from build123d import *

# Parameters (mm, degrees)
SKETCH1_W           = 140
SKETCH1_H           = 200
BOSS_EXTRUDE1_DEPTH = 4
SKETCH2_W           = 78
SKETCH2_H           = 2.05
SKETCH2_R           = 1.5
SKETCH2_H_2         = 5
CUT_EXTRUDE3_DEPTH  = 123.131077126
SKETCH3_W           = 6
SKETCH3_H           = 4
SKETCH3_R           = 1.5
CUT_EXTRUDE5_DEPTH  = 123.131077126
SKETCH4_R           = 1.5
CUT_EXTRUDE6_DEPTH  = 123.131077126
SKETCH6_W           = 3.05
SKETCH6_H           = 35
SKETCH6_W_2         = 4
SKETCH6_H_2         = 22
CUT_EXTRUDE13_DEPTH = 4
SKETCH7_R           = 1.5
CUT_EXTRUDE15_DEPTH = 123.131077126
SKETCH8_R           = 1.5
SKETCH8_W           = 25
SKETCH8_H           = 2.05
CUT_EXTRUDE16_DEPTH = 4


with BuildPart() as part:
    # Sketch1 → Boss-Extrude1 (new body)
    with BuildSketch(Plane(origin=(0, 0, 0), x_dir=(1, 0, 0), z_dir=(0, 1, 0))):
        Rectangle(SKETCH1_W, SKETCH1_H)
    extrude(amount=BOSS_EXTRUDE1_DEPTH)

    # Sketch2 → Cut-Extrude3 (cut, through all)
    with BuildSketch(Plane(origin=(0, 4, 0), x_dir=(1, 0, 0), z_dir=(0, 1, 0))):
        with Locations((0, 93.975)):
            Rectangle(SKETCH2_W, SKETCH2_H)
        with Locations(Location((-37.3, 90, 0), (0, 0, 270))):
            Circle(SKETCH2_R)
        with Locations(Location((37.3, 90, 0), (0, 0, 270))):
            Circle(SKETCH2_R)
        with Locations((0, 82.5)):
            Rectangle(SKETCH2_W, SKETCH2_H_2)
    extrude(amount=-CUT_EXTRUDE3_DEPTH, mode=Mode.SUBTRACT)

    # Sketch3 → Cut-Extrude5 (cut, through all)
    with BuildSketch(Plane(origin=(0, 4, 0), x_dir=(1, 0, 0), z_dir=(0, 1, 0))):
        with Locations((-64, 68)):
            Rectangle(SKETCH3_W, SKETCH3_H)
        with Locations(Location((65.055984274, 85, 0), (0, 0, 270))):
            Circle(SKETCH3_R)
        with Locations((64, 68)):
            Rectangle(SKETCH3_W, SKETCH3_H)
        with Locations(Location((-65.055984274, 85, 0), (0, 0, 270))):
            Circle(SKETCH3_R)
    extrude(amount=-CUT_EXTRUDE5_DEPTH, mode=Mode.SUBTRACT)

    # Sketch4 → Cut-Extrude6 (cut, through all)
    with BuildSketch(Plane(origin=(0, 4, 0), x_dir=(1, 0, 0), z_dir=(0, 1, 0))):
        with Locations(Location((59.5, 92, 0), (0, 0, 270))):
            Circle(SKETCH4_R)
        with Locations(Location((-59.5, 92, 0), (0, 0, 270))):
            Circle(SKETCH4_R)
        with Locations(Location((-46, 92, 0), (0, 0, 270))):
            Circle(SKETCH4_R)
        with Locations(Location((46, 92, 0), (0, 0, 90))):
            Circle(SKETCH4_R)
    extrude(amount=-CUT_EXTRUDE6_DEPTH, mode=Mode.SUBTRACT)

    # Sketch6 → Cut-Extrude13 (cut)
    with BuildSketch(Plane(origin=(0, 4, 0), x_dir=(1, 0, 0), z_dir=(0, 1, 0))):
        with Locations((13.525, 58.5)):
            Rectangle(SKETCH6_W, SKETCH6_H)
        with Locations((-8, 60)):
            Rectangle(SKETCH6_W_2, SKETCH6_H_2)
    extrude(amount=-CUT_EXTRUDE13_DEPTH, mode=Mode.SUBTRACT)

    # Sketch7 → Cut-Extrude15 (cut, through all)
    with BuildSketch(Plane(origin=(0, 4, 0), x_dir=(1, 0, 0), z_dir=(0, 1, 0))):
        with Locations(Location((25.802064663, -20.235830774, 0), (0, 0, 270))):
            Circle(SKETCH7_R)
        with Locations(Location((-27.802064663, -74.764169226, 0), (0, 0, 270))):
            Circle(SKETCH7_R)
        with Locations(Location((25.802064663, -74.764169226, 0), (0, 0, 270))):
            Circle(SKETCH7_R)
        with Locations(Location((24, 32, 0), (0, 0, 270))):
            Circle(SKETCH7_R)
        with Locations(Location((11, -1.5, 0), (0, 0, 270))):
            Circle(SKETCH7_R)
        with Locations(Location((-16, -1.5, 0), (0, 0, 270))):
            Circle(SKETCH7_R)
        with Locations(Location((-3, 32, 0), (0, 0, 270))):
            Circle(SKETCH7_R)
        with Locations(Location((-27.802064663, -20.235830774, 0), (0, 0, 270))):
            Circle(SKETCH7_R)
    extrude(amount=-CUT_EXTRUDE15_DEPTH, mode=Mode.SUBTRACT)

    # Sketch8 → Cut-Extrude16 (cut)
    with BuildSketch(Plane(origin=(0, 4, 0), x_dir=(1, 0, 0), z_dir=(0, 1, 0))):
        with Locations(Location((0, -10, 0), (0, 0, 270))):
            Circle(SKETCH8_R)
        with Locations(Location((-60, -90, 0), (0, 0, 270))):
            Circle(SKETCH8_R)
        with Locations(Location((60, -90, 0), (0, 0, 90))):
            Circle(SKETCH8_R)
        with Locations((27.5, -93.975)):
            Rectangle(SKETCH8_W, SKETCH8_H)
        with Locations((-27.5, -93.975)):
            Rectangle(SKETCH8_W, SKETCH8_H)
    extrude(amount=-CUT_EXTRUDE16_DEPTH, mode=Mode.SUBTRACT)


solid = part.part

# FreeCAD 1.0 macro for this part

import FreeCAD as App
import Part
import Sketcher

V = App.Vector

doc = App.newDocument("Part")
params = doc.addObject("Spreadsheet::Sheet", "Params")
for row, (alias, value) in enumerate([
    ("sketch1_width", "140 mm"),
    ("sketch1_height", "200 mm"),
    ("pad1_length", "4 mm"),
    ("sketch2_diameter", "3 mm"),
    ("sketch2_width", "78 mm"),
    ("sketch2_height", "5 mm"),
    ("sketch2_height2", "2.05 mm"),
    ("sketch3_diameter", "3 mm"),
    ("sketch3_width", "6 mm"),
    ("sketch3_height", "4 mm"),
    ("sketch4_diameter", "3 mm"),
    ("sketch5_width", "4 mm"),
    ("sketch5_height", "35 mm"),
    ("sketch5_height2", "22 mm"),
    ("sketch5_width2", "3.05 mm"),
    ("pocket4_length", "4 mm"),
    ("sketch6_diameter", "3 mm"),
    ("sketch7_diameter", "3 mm"),
    ("sketch7_width", "25 mm"),
    ("sketch7_height", "2.05 mm"),
    ("pocket6_length", "4 mm"),
], start=1):
    params.set(f"A{row}", alias)
    params.set(f"B{row}", "=" + value)
    params.setAlias(f"B{row}", alias)

body = doc.addObject("PartDesign::Body", "Body")

# Sketch on XZ plane
sketch1 = body.newObject("Sketcher::SketchObject", "Sketch")
sketch1.AttachmentSupport = (doc.getObject("XZ_Plane"), [""])
sketch1.MapMode = "FlatFace"
sketch1.addGeometry(Part.LineSegment(V(-70, -100, 0), V(-70, 100, 0)), False)
sketch1.addGeometry(Part.LineSegment(V(-70, 100, 0), V(70, 100, 0)), False)
sketch1.addGeometry(Part.LineSegment(V(70, 100, 0), V(70, -100, 0)), False)
sketch1.addGeometry(Part.LineSegment(V(70, -100, 0), V(-70, -100, 0)), False)
sketch1.addConstraint(Sketcher.Constraint("Coincident", 0, 2, 1, 1))
sketch1.addConstraint(Sketcher.Constraint("Coincident", 1, 2, 2, 1))
sketch1.addConstraint(Sketcher.Constraint("Coincident", 2, 2, 3, 1))
sketch1.addConstraint(Sketcher.Constraint("Coincident", 3, 2, 0, 1))
sketch1.addConstraint(Sketcher.Constraint("Vertical", 0))
sketch1.addConstraint(Sketcher.Constraint("Horizontal", 1))
sketch1.addConstraint(Sketcher.Constraint("Vertical", 2))
sketch1.addConstraint(Sketcher.Constraint("Horizontal", 3))
sketch1.addConstraint(Sketcher.Constraint("Symmetric", 0, 2, 2, 2, -1, 1))
sketch1.addConstraint(Sketcher.Constraint("DistanceX", 1, 1, 1, 2, 140.0))
sketch1.addConstraint(Sketcher.Constraint("DistanceY", 0, 1, 0, 2, 200.0))
sketch1.setExpression("Constraints[9]", "Params.sketch1_width")
sketch1.setExpression("Constraints[10]", "Params.sketch1_height")
pad1 = body.newObject("PartDesign::Pad", "Pad")
pad1.Profile = sketch1
pad1.setExpression("Length", "Params.pad1_length")
pad1.Reversed = True

# Sketch on XZ plane
sketch2 = body.newObject("Sketcher::SketchObject", "Sketch001")
sketch2.AttachmentSupport = (doc.getObject("XZ_Plane"), [""])
sketch2.MapMode = "FlatFace"
sketch2.AttachmentOffset = App.Placement(V(0, 0, -4), App.Rotation())
sketch2.addGeometry(Part.LineSegment(V(-39, -95, 0), V(-39, -92.95, 0)), False)
sketch2.addGeometry(Part.LineSegment(V(-39, -92.95, 0), V(39, -92.95, 0)), False)
sketch2.addGeometry(Part.LineSegment(V(39, -92.95, 0), V(39, -95, 0)), False)
sketch2.addGeometry(Part.LineSegment(V(39, -95, 0), V(-39, -95, 0)), False)
sketch2.addGeometry(Part.Circle(V(-37.3, -90, 0), V(0, 0, 1), 1.5), False)
sketch2.addGeometry(Part.Circle(V(37.3, -90, 0), V(0, 0, 1), 1.5), False)
sketch2.addGeometry(Part.LineSegment(V(-39, -85, 0), V(-39, -80, 0)), False)
sketch2.addGeometry(Part.LineSegment(V(-39, -80, 0), V(39, -80, 0)), False)
sketch2.addGeometry(Part.LineSegment(V(39, -80, 0), V(39, -85, 0)), False)
sketch2.addGeometry(Part.LineSegment(V(39, -85, 0), V(-39, -85, 0)), False)
sketch2.addConstraint(Sketcher.Constraint("Coincident", 0, 2, 1, 1))
sketch2.addConstraint(Sketcher.Constraint("Coincident", 1, 2, 2, 1))
sketch2.addConstraint(Sketcher.Constraint("Coincident", 2, 2, 3, 1))
sketch2.addConstraint(Sketcher.Constraint("Coincident", 3, 2, 0, 1))
sketch2.addConstraint(Sketcher.Constraint("Coincident", 6, 2, 7, 1))
sketch2.addConstraint(Sketcher.Constraint("Coincident", 7, 2, 8, 1))
sketch2.addConstraint(Sketcher.Constraint("Coincident", 8, 2, 9, 1))
sketch2.addConstraint(Sketcher.Constraint("Coincident", 9, 2, 6, 1))
sketch2.addConstraint(Sketcher.Constraint("Vertical", 0))
sketch2.addConstraint(Sketcher.Constraint("Horizontal", 1))
sketch2.addConstraint(Sketcher.Constraint("Vertical", 2))
sketch2.addConstraint(Sketcher.Constraint("Horizontal", 3))
sketch2.addConstraint(Sketcher.Constraint("Vertical", 6))
sketch2.addConstraint(Sketcher.Constraint("Horizontal", 7))
sketch2.addConstraint(Sketcher.Constraint("Vertical", 8))
sketch2.addConstraint(Sketcher.Constraint("Horizontal", 9))
sketch2.addConstraint(Sketcher.Constraint("Equal", 4, 5))
sketch2.addConstraint(Sketcher.Constraint("Symmetric", 4, 3, 5, 3, -2))
sketch2.addConstraint(Sketcher.Constraint("Vertical", 3, 2, 6, 2))
sketch2.addConstraint(Sketcher.Constraint("Vertical", 2, 2, 7, 2))
sketch2.addConstraint(Sketcher.Constraint("Diameter", 4, 3.0))
sketch2.addConstraint(Sketcher.Constraint("DistanceX", 1, 1, 1, 2, 78.0))
sketch2.addConstraint(Sketcher.Constraint("DistanceY", 6, 1, 6, 2, 5.0))
sketch2.addConstraint(Sketcher.Constraint("DistanceY", 4, 3, -1, 1, 90.0))
sketch2.addConstraint(Sketcher.Constraint("DistanceX", 0, 2, -1, 1, 39.0))
sketch2.addConstraint(Sketcher.Constraint("DistanceY", 2, 2, -1, 1, 95.0))
sketch2.addConstraint(Sketcher.Constraint("DistanceY", 6, 2, -1, 1, 80.0))
sketch2.addConstraint(Sketcher.Constraint("DistanceY", 0, 1, 0, 2, 2.05))
sketch2.addConstraint(Sketcher.Constraint("DistanceX", 4, 3, -1, 1, 37.3))
sketch2.setExpression("Constraints[20]", "Params.sketch2_diameter")
sketch2.setExpression("Constraints[21]", "Params.sketch2_width")
sketch2.setExpression("Constraints[22]", "Params.sketch2_height")
sketch2.setExpression("Constraints[27]", "Params.sketch2_height2")
pocket1 = body.newObject("PartDesign::Pocket", "Pocket")
pocket1.Profile = sketch2
pocket1.Type = "ThroughAll"
pocket1.Reversed = True

# Sketch on XZ plane
sketch3 = body.newObject("Sketcher::SketchObject", "Sketch002")
sketch3.AttachmentSupport = (doc.getObject("XZ_Plane"), [""])
sketch3.MapMode = "FlatFace"
sketch3.AttachmentOffset = App.Placement(V(0, 0, -4), App.Rotation())
sketch3.addGeometry(Part.LineSegment(V(-67, -70, 0), V(-67, -66, 0)), False)
sketch3.addGeometry(Part.LineSegment(V(-67, -66, 0), V(-61, -66, 0)), False)
sketch3.addGeometry(Part.LineSegment(V(-61, -66, 0), V(-61, -70, 0)), False)
sketch3.addGeometry(Part.LineSegment(V(-61, -70, 0), V(-67, -70, 0)), False)
sketch3.addGeometry(Part.Circle(V(65.055984, -85, 0), V(0, 0, 1), 1.5), False)
sketch3.addGeometry(Part.LineSegment(V(61, -70, 0), V(61, -66, 0)), False)
sketch3.addGeometry(Part.LineSegment(V(61, -66, 0), V(67, -66, 0)), False)
sketch3.addGeometry(Part.LineSegment(V(67, -66, 0), V(67, -70, 0)), False)
sketch3.addGeometry(Part.LineSegment(V(67, -70, 0), V(61, -70, 0)), False)
sketch3.addGeometry(Part.Circle(V(-65.055984, -85, 0), V(0, 0, 1), 1.5), False)
sketch3.addConstraint(Sketcher.Constraint("Coincident", 0, 2, 1, 1))
sketch3.addConstraint(Sketcher.Constraint("Coincident", 1, 2, 2, 1))
sketch3.addConstraint(Sketcher.Constraint("Coincident", 2, 2, 3, 1))
sketch3.addConstraint(Sketcher.Constraint("Coincident", 3, 2, 0, 1))
sketch3.addConstraint(Sketcher.Constraint("Coincident", 5, 2, 6, 1))
sketch3.addConstraint(Sketcher.Constraint("Coincident", 6, 2, 7, 1))
sketch3.addConstraint(Sketcher.Constraint("Coincident", 7, 2, 8, 1))
sketch3.addConstraint(Sketcher.Constraint("Coincident", 8, 2, 5, 1))
sketch3.addConstraint(Sketcher.Constraint("Vertical", 0))
sketch3.addConstraint(Sketcher.Constraint("Horizontal", 1))
sketch3.addConstraint(Sketcher.Constraint("Vertical", 2))
sketch3.addConstraint(Sketcher.Constraint("Horizontal", 3))
sketch3.addConstraint(Sketcher.Constraint("Vertical", 5))
sketch3.addConstraint(Sketcher.Constraint("Horizontal", 6))
sketch3.addConstraint(Sketcher.Constraint("Vertical", 7))
sketch3.addConstraint(Sketcher.Constraint("Horizontal", 8))
sketch3.addConstraint(Sketcher.Constraint("Equal", 4, 9))
sketch3.addConstraint(Sketcher.Constraint("Symmetric", 4, 3, 9, 3, -2))
sketch3.addConstraint(Sketcher.Constraint("Symmetric", 1, 2, 5, 2, -2))
sketch3.addConstraint(Sketcher.Constraint("Symmetric", 3, 2, 7, 2, -2))
sketch3.addConstraint(Sketcher.Constraint("Diameter", 4, 3.0))
sketch3.addConstraint(Sketcher.Constraint("DistanceX", 1, 1, 1, 2, 6.0))
sketch3.addConstraint(Sketcher.Constraint("DistanceY", 0, 1, 0, 2, 4.0))
sketch3.addConstraint(Sketcher.Constraint("DistanceY", 4, 3, -1, 1, 85.0))
sketch3.addConstraint(Sketcher.Constraint("DistanceX", 0, 2, -1, 1, 67.0))
sketch3.addConstraint(Sketcher.Constraint("DistanceY", 0, 2, -1, 1, 66.0))
sketch3.addConstraint(Sketcher.Constraint("DistanceX", 9, 3, 4, 3, 130.111969))
sketch3.setExpression("Constraints[20]", "Params.sketch3_diameter")
sketch3.setExpression("Constraints[21]", "Params.sketch3_width")
sketch3.setExpression("Constraints[22]", "Params.sketch3_height")
pocket2 = body.newObject("PartDesign::Pocket", "Pocket001")
pocket2.Profile = sketch3
pocket2.Type = "ThroughAll"
pocket2.Reversed = True

# Sketch on XZ plane
sketch4 = body.newObject("Sketcher::SketchObject", "Sketch003")
sketch4.AttachmentSupport = (doc.getObject("XZ_Plane"), [""])
sketch4.MapMode = "FlatFace"
sketch4.AttachmentOffset = App.Placement(V(0, 0, -4), App.Rotation())
sketch4.addGeometry(Part.Circle(V(59.5, -92, 0), V(0, 0, 1), 1.5), False)
sketch4.addGeometry(Part.Circle(V(-59.5, -92, 0), V(0, 0, 1), 1.5), False)
sketch4.addGeometry(Part.Circle(V(-46, -92, 0), V(0, 0, 1), 1.5), False)
sketch4.addGeometry(Part.Circle(V(46, -92, 0), V(0, 0, 1), 1.5), False)
sketch4.addConstraint(Sketcher.Constraint("Equal", 0, 1))
sketch4.addConstraint(Sketcher.Constraint("Equal", 1, 2))
sketch4.addConstraint(Sketcher.Constraint("Equal", 2, 3))
sketch4.addConstraint(Sketcher.Constraint("Symmetric", 0, 3, 1, 3, -2))
sketch4.addConstraint(Sketcher.Constraint("Symmetric", 2, 3, 3, 3, -2))
sketch4.addConstraint(Sketcher.Constraint("Horizontal", 1, 3, 2, 3))
sketch4.addConstraint(Sketcher.Constraint("Diameter", 0, 3.0))
sketch4.addConstraint(Sketcher.Constraint("DistanceY", 0, 3, -1, 1, 92.0))
sketch4.addConstraint(Sketcher.Constraint("DistanceX", 2, 3, -1, 1, 46.0))
sketch4.addConstraint(Sketcher.Constraint("DistanceX", 1, 3, 0, 3, 119.0))
sketch4.setExpression("Constraints[6]", "Params.sketch4_diameter")
pocket3 = body.newObject("PartDesign::Pocket", "Pocket002")
pocket3.Profile = sketch4
pocket3.Type = "ThroughAll"
pocket3.Reversed = True

# Sketch on XZ plane
sketch5 = body.newObject("Sketcher::SketchObject", "Sketch004")
sketch5.AttachmentSupport = (doc.getObject("XZ_Plane"), [""])
sketch5.MapMode = "FlatFace"
sketch5.AttachmentOffset = App.Placement(V(0, 0, -4), App.Rotation())
sketch5.addGeometry(Part.LineSegment(V(12, -76, 0), V(12, -41, 0)), False)
sketch5.addGeometry(Part.LineSegment(V(12, -41, 0), V(15.05, -41, 0)), False)
sketch5.addGeometry(Part.LineSegment(V(15.05, -41, 0), V(15.05, -76, 0)), False)
sketch5.addGeometry(Part.LineSegment(V(15.05, -76, 0), V(12, -76, 0)), False)
sketch5.addGeometry(Part.LineSegment(V(-10, -71, 0), V(-10, -49, 0)), False)
sketch5.addGeometry(Part.LineSegment(V(-10, -49, 0), V(-6, -49, 0)), False)
sketch5.addGeometry(Part.LineSegment(V(-6, -49, 0), V(-6, -71, 0)), False)
sketch5.addGeometry(Part.LineSegment(V(-6, -71, 0), V(-10, -71, 0)), False)
sketch5.addConstraint(Sketcher.Constraint("Coincident", 0, 2, 1, 1))
sketch5.addConstraint(Sketcher.Constraint("Coincident", 1, 2, 2, 1))
sketch5.addConstraint(Sketcher.Constraint("Coincident", 2, 2, 3, 1))
sketch5.addConstraint(Sketcher.Constraint("Coincident", 3, 2, 0, 1))
sketch5.addConstraint(Sketcher.Constraint("Coincident", 4, 2, 5, 1))
sketch5.addConstraint(Sketcher.Constraint("Coincident", 5, 2, 6, 1))
sketch5.addConstraint(Sketcher.Constraint("Coincident", 6, 2, 7, 1))
sketch5.addConstraint(Sketcher.Constraint("Coincident", 7, 2, 4, 1))
sketch5.addConstraint(Sketcher.Constraint("Vertical", 0))
sketch5.addConstraint(Sketcher.Constraint("Horizontal", 1))
sketch5.addConstraint(Sketcher.Constraint("Vertical", 2))
sketch5.addConstraint(Sketcher.Constraint("Horizontal", 3))
sketch5.addConstraint(Sketcher.Constraint("Vertical", 4))
sketch5.addConstraint(Sketcher.Constraint("Horizontal", 5))
sketch5.addConstraint(Sketcher.Constraint("Vertical", 6))
sketch5.addConstraint(Sketcher.Constraint("Horizontal", 7))
sketch5.addConstraint(Sketcher.Constraint("DistanceX", 5, 1, 5, 2, 4.0))
sketch5.addConstraint(Sketcher.Constraint("DistanceY", 0, 1, 0, 2, 35.0))
sketch5.addConstraint(Sketcher.Constraint("DistanceY", 4, 1, 4, 2, 22.0))
sketch5.addConstraint(Sketcher.Constraint("DistanceX", -1, 1, 0, 2, 12.0))
sketch5.addConstraint(Sketcher.Constraint("DistanceY", 0, 2, -1, 1, 41.0))
sketch5.addConstraint(Sketcher.Constraint("DistanceX", 4, 2, -1, 1, 10.0))
sketch5.addConstraint(Sketcher.Constraint("DistanceY", 4, 2, -1, 1, 49.0))
sketch5.addConstraint(Sketcher.Constraint("DistanceX", 1, 1, 1, 2, 3.05))
sketch5.setExpression("Constraints[16]", "Params.sketch5_width")
sketch5.setExpression("Constraints[17]", "Params.sketch5_height")
sketch5.setExpression("Constraints[18]", "Params.sketch5_height2")
sketch5.setExpression("Constraints[23]", "Params.sketch5_width2")
pocket4 = body.newObject("PartDesign::Pocket", "Pocket003")
pocket4.Profile = sketch5
pocket4.setExpression("Length", "Params.pocket4_length")
pocket4.Reversed = True

# Sketch on XZ plane
sketch6 = body.newObject("Sketcher::SketchObject", "Sketch005")
sketch6.AttachmentSupport = (doc.getObject("XZ_Plane"), [""])
sketch6.MapMode = "FlatFace"
sketch6.AttachmentOffset = App.Placement(V(0, 0, -4), App.Rotation())
sketch6.addGeometry(Part.Circle(V(25.802065, 20.235831, 0), V(0, 0, 1), 1.5), False)
sketch6.addGeometry(Part.Circle(V(-27.802065, 74.764169, 0), V(0, 0, 1), 1.5), False)
sketch6.addGeometry(Part.Circle(V(25.802065, 74.764169, 0), V(0, 0, 1), 1.5), False)
sketch6.addGeometry(Part.Circle(V(24, -32, 0), V(0, 0, 1), 1.5), False)
sketch6.addGeometry(Part.Circle(V(11, 1.5, 0), V(0, 0, 1), 1.5), False)
sketch6.addGeometry(Part.Circle(V(-16, 1.5, 0), V(0, 0, 1), 1.5), False)
sketch6.addGeometry(Part.Circle(V(-3, -32, 0), V(0, 0, 1), 1.5), False)
sketch6.addGeometry(Part.Circle(V(-27.802065, 20.235831, 0), V(0, 0, 1), 1.5), False)
sketch6.addConstraint(Sketcher.Constraint("Equal", 0, 1))
sketch6.addConstraint(Sketcher.Constraint("Equal", 1, 2))
sketch6.addConstraint(Sketcher.Constraint("Equal", 2, 3))
sketch6.addConstraint(Sketcher.Constraint("Equal", 3, 4))
sketch6.addConstraint(Sketcher.Constraint("Equal", 4, 5))
sketch6.addConstraint(Sketcher.Constraint("Equal", 5, 6))
sketch6.addConstraint(Sketcher.Constraint("Equal", 6, 7))
sketch6.addConstraint(Sketcher.Constraint("Horizontal", 1, 3, 2, 3))
sketch6.addConstraint(Sketcher.Constraint("Horizontal", 4, 3, 5, 3))
sketch6.addConstraint(Sketcher.Constraint("Horizontal", 3, 3, 6, 3))
sketch6.addConstraint(Sketcher.Constraint("Horizontal", 0, 3, 7, 3))
sketch6.addConstraint(Sketcher.Constraint("Vertical", 0, 3, 2, 3))
sketch6.addConstraint(Sketcher.Constraint("Vertical", 1, 3, 7, 3))
sketch6.addConstraint(Sketcher.Constraint("Diameter", 0, 3.0))
sketch6.addConstraint(Sketcher.Constraint("DistanceX", -1, 1, 3, 3, 24.0))
sketch6.addConstraint(Sketcher.Constraint("DistanceY", 3, 3, -1, 1, 32.0))
sketch6.addConstraint(Sketcher.Constraint("DistanceX", -1, 1, 4, 3, 11.0))
sketch6.addConstraint(Sketcher.Constraint("DistanceX", 5, 3, -1, 1, 16.0))
sketch6.addConstraint(Sketcher.Constraint("DistanceX", 6, 3, -1, 1, 3.0))
sketch6.addConstraint(Sketcher.Constraint("DistanceY", -1, 1, 4, 3, 1.5))
sketch6.addConstraint(Sketcher.Constraint("DistanceY", -1, 1, 0, 3, 20.235831))
sketch6.addConstraint(Sketcher.Constraint("DistanceY", -1, 1, 1, 3, 74.764169))
sketch6.addConstraint(Sketcher.Constraint("DistanceX", 1, 3, 0, 3, 53.604129))
sketch6.addConstraint(Sketcher.Constraint("DistanceX", -1, 1, 0, 3, 25.802065))
sketch6.setExpression("Constraints[13]", "Params.sketch6_diameter")
pocket5 = body.newObject("PartDesign::Pocket", "Pocket004")
pocket5.Profile = sketch6
pocket5.Type = "ThroughAll"
pocket5.Reversed = True

# Sketch on XZ plane
sketch7 = body.newObject("Sketcher::SketchObject", "Sketch006")
sketch7.AttachmentSupport = (doc.getObject("XZ_Plane"), [""])
sketch7.MapMode = "FlatFace"
sketch7.AttachmentOffset = App.Placement(V(0, 0, -4), App.Rotation())
sketch7.addGeometry(Part.Circle(V(0, 10, 0), V(0, 0, 1), 1.5), False)
sketch7.addGeometry(Part.Circle(V(-60, 90, 0), V(0, 0, 1), 1.5), False)
sketch7.addGeometry(Part.Circle(V(60, 90, 0), V(0, 0, 1), 1.5), False)
sketch7.addGeometry(Part.LineSegment(V(15, 92.95, 0), V(15, 95, 0)), False)
sketch7.addGeometry(Part.LineSegment(V(15, 95, 0), V(40, 95, 0)), False)
sketch7.addGeometry(Part.LineSegment(V(40, 95, 0), V(40, 92.95, 0)), False)
sketch7.addGeometry(Part.LineSegment(V(40, 92.95, 0), V(15, 92.95, 0)), False)
sketch7.addGeometry(Part.LineSegment(V(-40, 92.95, 0), V(-40, 95, 0)), False)
sketch7.addGeometry(Part.LineSegment(V(-40, 95, 0), V(-15, 95, 0)), False)
sketch7.addGeometry(Part.LineSegment(V(-15, 95, 0), V(-15, 92.95, 0)), False)
sketch7.addGeometry(Part.LineSegment(V(-15, 92.95, 0), V(-40, 92.95, 0)), False)
sketch7.addConstraint(Sketcher.Constraint("Coincident", 3, 2, 4, 1))
sketch7.addConstraint(Sketcher.Constraint("Coincident", 4, 2, 5, 1))
sketch7.addConstraint(Sketcher.Constraint("Coincident", 5, 2, 6, 1))
sketch7.addConstraint(Sketcher.Constraint("Coincident", 6, 2, 3, 1))
sketch7.addConstraint(Sketcher.Constraint("Coincident", 7, 2, 8, 1))
sketch7.addConstraint(Sketcher.Constraint("Coincident", 8, 2, 9, 1))
sketch7.addConstraint(Sketcher.Constraint("Coincident", 9, 2, 10, 1))
sketch7.addConstraint(Sketcher.Constraint("Coincident", 10, 2, 7, 1))
sketch7.addConstraint(Sketcher.Constraint("Vertical", 3))
sketch7.addConstraint(Sketcher.Constraint("Horizontal", 4))
sketch7.addConstraint(Sketcher.Constraint("Vertical", 5))
sketch7.addConstraint(Sketcher.Constraint("Horizontal", 6))
sketch7.addConstraint(Sketcher.Constraint("Vertical", 7))
sketch7.addConstraint(Sketcher.Constraint("Horizontal", 8))
sketch7.addConstraint(Sketcher.Constraint("Vertical", 9))
sketch7.addConstraint(Sketcher.Constraint("Horizontal", 10))
sketch7.addConstraint(Sketcher.Constraint("Equal", 0, 1))
sketch7.addConstraint(Sketcher.Constraint("Equal", 1, 2))
sketch7.addConstraint(Sketcher.Constraint("Symmetric", 1, 3, 2, 3, -2))
sketch7.addConstraint(Sketcher.Constraint("Symmetric", 4, 2, 7, 2, -2))
sketch7.addConstraint(Sketcher.Constraint("Symmetric", 6, 2, 9, 2, -2))
sketch7.addConstraint(Sketcher.Constraint("PointOnObject", 0, 3, -2))
sketch7.addConstraint(Sketcher.Constraint("Diameter", 0, 3.0))
sketch7.addConstraint(Sketcher.Constraint("DistanceX", 4, 1, 4, 2, 25.0))
sketch7.addConstraint(Sketcher.Constraint("DistanceY", -1, 1, 0, 3, 10.0))
sketch7.addConstraint(Sketcher.Constraint("DistanceX", 1, 3, -1, 1, 60.0))
sketch7.addConstraint(Sketcher.Constraint("DistanceY", -1, 1, 1, 3, 90.0))
sketch7.addConstraint(Sketcher.Constraint("DistanceX", -1, 1, 3, 2, 15.0))
sketch7.addConstraint(Sketcher.Constraint("DistanceY", -1, 1, 3, 2, 95.0))
sketch7.addConstraint(Sketcher.Constraint("DistanceY", 3, 1, 3, 2, 2.05))
sketch7.setExpression("Constraints[22]", "Params.sketch7_diameter")
sketch7.setExpression("Constraints[23]", "Params.sketch7_width")
sketch7.setExpression("Constraints[29]", "Params.sketch7_height")
pocket6 = body.newObject("PartDesign::Pocket", "Pocket005")
pocket6.Profile = sketch7
pocket6.setExpression("Length", "Params.pocket6_length")
pocket6.Reversed = True

doc.recompute()
